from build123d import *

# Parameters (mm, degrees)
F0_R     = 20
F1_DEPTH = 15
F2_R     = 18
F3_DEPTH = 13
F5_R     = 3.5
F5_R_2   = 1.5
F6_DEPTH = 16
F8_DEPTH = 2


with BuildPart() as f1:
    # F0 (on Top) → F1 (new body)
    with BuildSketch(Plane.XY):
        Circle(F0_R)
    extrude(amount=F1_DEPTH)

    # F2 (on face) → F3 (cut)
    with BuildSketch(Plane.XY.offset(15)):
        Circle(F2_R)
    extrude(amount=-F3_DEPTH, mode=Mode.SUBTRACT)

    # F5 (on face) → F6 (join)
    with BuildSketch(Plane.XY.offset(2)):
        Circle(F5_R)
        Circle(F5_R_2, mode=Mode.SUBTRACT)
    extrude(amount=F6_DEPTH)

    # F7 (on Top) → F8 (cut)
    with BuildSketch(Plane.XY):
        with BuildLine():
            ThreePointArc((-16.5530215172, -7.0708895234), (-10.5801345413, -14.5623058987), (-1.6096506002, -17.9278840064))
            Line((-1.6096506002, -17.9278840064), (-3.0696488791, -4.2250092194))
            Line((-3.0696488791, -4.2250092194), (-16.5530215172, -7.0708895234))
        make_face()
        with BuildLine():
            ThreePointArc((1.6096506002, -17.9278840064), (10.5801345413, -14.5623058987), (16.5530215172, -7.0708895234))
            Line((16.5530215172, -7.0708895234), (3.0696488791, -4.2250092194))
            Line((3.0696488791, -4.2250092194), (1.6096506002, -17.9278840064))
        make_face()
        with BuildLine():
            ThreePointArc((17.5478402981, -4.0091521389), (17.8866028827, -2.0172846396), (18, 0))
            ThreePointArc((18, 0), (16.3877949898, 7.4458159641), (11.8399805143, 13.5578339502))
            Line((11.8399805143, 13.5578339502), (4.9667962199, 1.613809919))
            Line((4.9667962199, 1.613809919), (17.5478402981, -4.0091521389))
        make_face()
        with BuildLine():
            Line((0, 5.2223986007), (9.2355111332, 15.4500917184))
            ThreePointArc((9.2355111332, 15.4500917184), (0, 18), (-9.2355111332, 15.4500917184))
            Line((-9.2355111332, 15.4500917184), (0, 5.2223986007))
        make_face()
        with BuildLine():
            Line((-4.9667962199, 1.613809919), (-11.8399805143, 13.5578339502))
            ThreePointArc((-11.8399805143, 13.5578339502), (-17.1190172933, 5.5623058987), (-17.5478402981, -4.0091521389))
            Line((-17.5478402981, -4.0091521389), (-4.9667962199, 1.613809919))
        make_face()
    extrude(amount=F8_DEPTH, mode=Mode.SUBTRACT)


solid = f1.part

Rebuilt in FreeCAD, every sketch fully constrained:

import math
import FreeCAD as App
import Part
import Sketcher
from FreeCAD import Vector
Q = App.Units.Quantity

doc = App.newDocument("Part")
body = doc.addObject("PartDesign::Body", "Body")

sketch1 = body.newObject("Sketcher::SketchObject", "Sketch")
sketch1.AttachmentSupport = (doc.getObject("XY_Plane"), [""])
sketch1.MapMode = "FlatFace"
sketch1.addGeometry(Part.Circle(Vector(0, 0, 0), Vector(0, 0, 1), 20), False)
sketch1.addConstraint([
    Sketcher.Constraint("Coincident", 0, 3, -1, 1),
    Sketcher.Constraint("Diameter", 0, Q("40 mm")),
])
pad1 = body.newObject("PartDesign::Pad", "Pad")
pad1.Profile = sketch1
pad1.Length = 15

sketch2 = body.newObject("Sketcher::SketchObject", "Sketch001")
sketch2.AttachmentSupport = (doc.getObject("XY_Plane"), [""])
sketch2.MapMode = "FlatFace"
sketch2.AttachmentOffset = App.Placement(Vector(0, 0, 15), App.Rotation())
sketch2.addGeometry(Part.Circle(Vector(0, 0, 0), Vector(0, 0, 1), 18), False)
sketch2.addConstraint([
    Sketcher.Constraint("Coincident", 0, 3, -1, 1),
    Sketcher.Constraint("Diameter", 0, Q("36 mm")),
])
pocket1 = body.newObject("PartDesign::Pocket", "Pocket")
pocket1.Profile = sketch2
pocket1.Length = 13

sketch3 = body.newObject("Sketcher::SketchObject", "Sketch002")
sketch3.AttachmentSupport = (doc.getObject("XY_Plane"), [""])
sketch3.MapMode = "FlatFace"
sketch3.AttachmentOffset = App.Placement(Vector(0, 0, 2), App.Rotation())
sketch3.addGeometry([
    Part.Circle(Vector(0, 0, 0), Vector(0, 0, 1), 3.5),
    Part.Circle(Vector(0, 0, 0), Vector(0, 0, 1), 1.5),
], False)
sketch3.addConstraint([
    Sketcher.Constraint("Coincident", 0, 3, -1, 1),
    Sketcher.Constraint("Coincident", 1, 3, -1, 1),
    Sketcher.Constraint("Diameter", 0, Q("7 mm")),
    Sketcher.Constraint("Diameter", 1, Q("3 mm")),
])
pad2 = body.newObject("PartDesign::Pad", "Pad001")
pad2.Profile = sketch3
pad2.Length = 16

sketch4 = body.newObject("Sketcher::SketchObject", "Sketch003")
sketch4.AttachmentSupport = (doc.getObject("XY_Plane"), [""])
sketch4.MapMode = "FlatFace"
sketch4.addGeometry([
    Part.ArcOfCircle(Part.Circle(Vector(0, 0, 0), Vector(0, 0, 1), 18), math.radians(-156.869469), math.radians(-95.130531)),
    Part.LineSegment(Vector(-1.609651, -17.927884, 0), Vector(-3.069649, -4.225009, 0)),
    Part.LineSegment(Vector(-3.069649, -4.225009, 0), Vector(-16.553022, -7.07089, 0)),
    Part.ArcOfCircle(Part.Circle(Vector(0, 0, 0), Vector(0, 0, 1), 18), math.radians(-84.869469), math.radians(-23.130531)),
    Part.LineSegment(Vector(16.553022, -7.07089, 0), Vector(3.069649, -4.225009, 0)),
    Part.LineSegment(Vector(3.069649, -4.225009, 0), Vector(1.609651, -17.927884, 0)),
    Part.ArcOfCircle(Part.Circle(Vector(0, 0, 0), Vector(0, 0, 1), 18), math.radians(-12.869469), math.radians(0)),
    Part.ArcOfCircle(Part.Circle(Vector(0, 0, 0), Vector(0, 0, 1), 18), math.radians(0), math.radians(48.869469)),
    Part.LineSegment(Vector(11.839981, 13.557834, 0), Vector(4.966796, 1.61381, 0)),
    Part.LineSegment(Vector(4.966796, 1.61381, 0), Vector(17.54784, -4.009152, 0)),
    Part.LineSegment(Vector(0, 5.222399, 0), Vector(9.235511, 15.450092, 0)),
    Part.ArcOfCircle(Part.Circle(Vector(0, 0, 0), Vector(0, 0, 1), 18), math.radians(59.130531), math.radians(120.869469)),
    Part.LineSegment(Vector(-9.235511, 15.450092, 0), Vector(0, 5.222399, 0)),
    Part.LineSegment(Vector(-4.966796, 1.61381, 0), Vector(-11.839981, 13.557834, 0)),
    Part.ArcOfCircle(Part.Circle(Vector(0, 0, 0), Vector(0, 0, 1), 18), math.radians(131.130531), math.radians(192.869469)),
    Part.LineSegment(Vector(-17.54784, -4.009152, 0), Vector(-4.966796, 1.61381, 0)),
], False)
sketch4.addConstraint([
    Sketcher.Constraint("Coincident", 0, 2, 1, 1),
    Sketcher.Constraint("Coincident", 1, 2, 2, 1),
    Sketcher.Constraint("Coincident", 2, 2, 0, 1),
    Sketcher.Constraint("Coincident", 3, 2, 4, 1),
    Sketcher.Constraint("Coincident", 4, 2, 5, 1),
    Sketcher.Constraint("Coincident", 5, 2, 3, 1),
    Sketcher.Constraint("Tangent", 6, 2, 7, 1),
    Sketcher.Constraint("Coincident", 7, 2, 8, 1),
    Sketcher.Constraint("Coincident", 8, 2, 9, 1),
    Sketcher.Constraint("Coincident", 9, 2, 6, 1),
    Sketcher.Constraint("Coincident", 10, 2, 11, 1),
    Sketcher.Constraint("Coincident", 11, 2, 12, 1),
    Sketcher.Constraint("Coincident", 12, 2, 10, 1),
    Sketcher.Constraint("Coincident", 13, 2, 14, 1),
    Sketcher.Constraint("Coincident", 14, 2, 15, 1),
    Sketcher.Constraint("Coincident", 15, 2, 13, 1),
    Sketcher.Constraint("Coincident", 0, 3, -1, 1),
    Sketcher.Constraint("Coincident", 3, 3, -1, 1),
    Sketcher.Constraint("Coincident", 6, 3, -1, 1),
    Sketcher.Constraint("Coincident", 11, 3, -1, 1),
    Sketcher.Constraint("Coincident", 14, 3, -1, 1),
    Sketcher.Constraint("Equal", 0, 3),
    Sketcher.Constraint("Equal", 3, 6),
    Sketcher.Constraint("Equal", 6, 7),
    Sketcher.Constraint("Equal", 7, 11),
    Sketcher.Constraint("Equal", 11, 14),
    Sketcher.Constraint("Symmetric", 1, 2, 4, 2, -2),
    Sketcher.Constraint("Symmetric", 8, 2, 15, 2, -2),
    Sketcher.Constraint("PointOnObject", 6, 2, -1),
    Sketcher.Constraint("PointOnObject", 12, 2, -2),
    Sketcher.Constraint("Horizontal", 2, 2, 3, 2),
    Sketcher.Constraint("Horizontal", 0, 2, 5, 2),
    Sketcher.Constraint("Horizontal", 10, 2, 11, 2),
    Sketcher.Constraint("Horizontal", 7, 2, 13, 2),
    Sketcher.Constraint("Horizontal", 9, 2, 14, 2),
    Sketcher.Constraint("Equal", 1, 2),
    Sketcher.Constraint("Equal", 5, 8),
    Sketcher.Constraint("Equal", 8, 9),
    Sketcher.Constraint("Equal", 9, 10),
    Sketcher.Constraint("Radius", 0, Q("18 mm")),
    Sketcher.Constraint("DistanceX", 5, 2, 4, 2, Q("1.459998 mm")),
    Sketcher.Constraint("DistanceY", -1, 1, 12, 2, Q("5.222399 mm")),
    Sketcher.Constraint("DistanceX", 0, 2, 5, 2, Q("3.219301 mm")),
    Sketcher.Constraint("DistanceY", 1, 2, -1, 1, Q("4.225009 mm")),
    Sketcher.Constraint("DistanceX", -1, 1, 7, 2, Q("11.839981 mm")),
    Sketcher.Constraint("DistanceY", -1, 1, 8, 2, Q("1.61381 mm")),
])
pocket2 = body.newObject("PartDesign::Pocket", "Pocket001")
pocket2.Profile = sketch4
pocket2.Length = 2
pocket2.Reversed = True

doc.recompute()
